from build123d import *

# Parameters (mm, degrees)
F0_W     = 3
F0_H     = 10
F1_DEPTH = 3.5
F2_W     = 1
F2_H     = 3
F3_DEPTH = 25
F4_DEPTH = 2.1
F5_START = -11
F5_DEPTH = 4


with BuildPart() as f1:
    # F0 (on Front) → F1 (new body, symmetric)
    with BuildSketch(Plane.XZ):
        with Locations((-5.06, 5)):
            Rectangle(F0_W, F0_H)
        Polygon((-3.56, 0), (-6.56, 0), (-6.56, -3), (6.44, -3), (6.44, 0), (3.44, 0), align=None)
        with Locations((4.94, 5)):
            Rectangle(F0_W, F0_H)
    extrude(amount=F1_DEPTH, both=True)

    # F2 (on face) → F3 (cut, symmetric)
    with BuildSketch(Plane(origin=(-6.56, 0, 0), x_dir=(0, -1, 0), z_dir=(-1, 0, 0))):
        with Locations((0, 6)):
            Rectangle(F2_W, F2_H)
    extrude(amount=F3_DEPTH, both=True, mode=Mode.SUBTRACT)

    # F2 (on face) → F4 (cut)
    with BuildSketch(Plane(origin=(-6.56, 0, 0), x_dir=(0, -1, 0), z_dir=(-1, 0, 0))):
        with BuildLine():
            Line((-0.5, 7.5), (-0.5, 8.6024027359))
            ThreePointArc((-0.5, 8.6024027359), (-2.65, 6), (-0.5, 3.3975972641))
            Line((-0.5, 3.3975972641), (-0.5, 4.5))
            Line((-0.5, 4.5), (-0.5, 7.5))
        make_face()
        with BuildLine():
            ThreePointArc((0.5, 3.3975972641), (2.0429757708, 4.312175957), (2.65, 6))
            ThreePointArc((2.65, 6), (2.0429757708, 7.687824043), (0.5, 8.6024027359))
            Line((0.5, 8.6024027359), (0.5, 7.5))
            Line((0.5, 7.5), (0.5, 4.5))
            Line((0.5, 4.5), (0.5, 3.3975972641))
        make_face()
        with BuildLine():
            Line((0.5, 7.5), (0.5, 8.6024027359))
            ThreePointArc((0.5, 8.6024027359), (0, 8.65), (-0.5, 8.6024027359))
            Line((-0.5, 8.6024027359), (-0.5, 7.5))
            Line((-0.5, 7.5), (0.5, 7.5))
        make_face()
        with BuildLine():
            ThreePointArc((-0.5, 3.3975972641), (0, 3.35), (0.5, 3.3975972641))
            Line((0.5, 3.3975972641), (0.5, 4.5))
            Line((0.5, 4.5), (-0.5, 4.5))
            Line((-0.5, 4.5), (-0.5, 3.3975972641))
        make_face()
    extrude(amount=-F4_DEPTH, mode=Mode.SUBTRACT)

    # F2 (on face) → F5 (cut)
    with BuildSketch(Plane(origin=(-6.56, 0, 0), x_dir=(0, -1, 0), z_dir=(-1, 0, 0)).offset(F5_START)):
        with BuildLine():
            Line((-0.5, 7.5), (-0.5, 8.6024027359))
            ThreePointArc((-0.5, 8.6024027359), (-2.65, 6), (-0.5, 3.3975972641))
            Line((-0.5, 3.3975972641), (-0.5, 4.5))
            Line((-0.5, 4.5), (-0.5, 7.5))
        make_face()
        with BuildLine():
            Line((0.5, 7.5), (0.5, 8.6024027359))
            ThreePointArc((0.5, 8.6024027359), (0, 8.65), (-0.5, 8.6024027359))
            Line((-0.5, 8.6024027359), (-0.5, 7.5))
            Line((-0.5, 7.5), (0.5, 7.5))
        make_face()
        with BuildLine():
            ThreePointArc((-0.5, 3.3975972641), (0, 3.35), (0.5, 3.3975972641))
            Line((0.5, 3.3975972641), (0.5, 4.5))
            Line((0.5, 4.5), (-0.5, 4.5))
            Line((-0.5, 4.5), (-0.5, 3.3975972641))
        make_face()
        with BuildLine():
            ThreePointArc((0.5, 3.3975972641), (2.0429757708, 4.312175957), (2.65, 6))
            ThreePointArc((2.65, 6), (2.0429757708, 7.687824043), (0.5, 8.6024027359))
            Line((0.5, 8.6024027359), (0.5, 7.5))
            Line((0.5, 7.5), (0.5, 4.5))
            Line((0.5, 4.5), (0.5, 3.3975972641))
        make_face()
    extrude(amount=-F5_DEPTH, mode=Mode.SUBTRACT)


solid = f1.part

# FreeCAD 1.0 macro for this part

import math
import FreeCAD as App
import Part
import Sketcher
Q = App.Units.Quantity

doc = App.newDocument("Part")
body = doc.addObject("PartDesign::Body", "Body")

sketch1 = doc.addObject("Sketcher::SketchObject", "Sketch")
body.addObject(sketch1)
sketch1.AttachmentSupport = (doc.XZ_Plane, [""])
sketch1.MapMode = "FlatFace"
sketch1.addGeometry([
    Part.LineSegment(App.Vector(-6.6, 10, 0), App.Vector(-6.6, -3, 0)),
    Part.LineSegment(App.Vector(-6.6, -3, 0), App.Vector(6.4, -3, 0)),
    Part.LineSegment(App.Vector(6.4, -3, 0), App.Vector(6.4, 10, 0)),
    Part.LineSegment(App.Vector(6.4, 10, 0), App.Vector(3.4, 10, 0)),
    Part.LineSegment(App.Vector(3.4, 10, 0), App.Vector(3.4, 0, 0)),
    Part.LineSegment(App.Vector(3.4, 0, 0), App.Vector(-3.6, 0, 0)),
    Part.LineSegment(App.Vector(-3.6, 0, 0), App.Vector(-3.6, 10, 0)),
    Part.LineSegment(App.Vector(-3.6, 10, 0), App.Vector(-6.6, 10, 0)),
], False)
sketch1.addConstraint([
    Sketcher.Constraint("Coincident", 0, 2, 1, 1),
    Sketcher.Constraint("Coincident", 1, 2, 2, 1),
    Sketcher.Constraint("Coincident", 2, 2, 3, 1),
    Sketcher.Constraint("Coincident", 3, 2, 4, 1),
    Sketcher.Constraint("Coincident", 4, 2, 5, 1),
    Sketcher.Constraint("Coincident", 5, 2, 6, 1),
    Sketcher.Constraint("Coincident", 6, 2, 7, 1),
    Sketcher.Constraint("Coincident", 7, 2, 0, 1),
    Sketcher.Constraint("Vertical", 0),
    Sketcher.Constraint("Horizontal", 1),
    Sketcher.Constraint("Vertical", 2),
    Sketcher.Constraint("Horizontal", 3),
    Sketcher.Constraint("Vertical", 4),
    Sketcher.Constraint("Horizontal", 5),
    Sketcher.Constraint("Vertical", 6),
    Sketcher.Constraint("Horizontal", 7),
    Sketcher.Constraint("PointOnObject", 4, 2, -1),
    Sketcher.Constraint("Horizontal", 3, 2, 6, 2),
    Sketcher.Constraint("Equal", 3, 7),
    Sketcher.Constraint("Equal", 1, 0),
    Sketcher.Constraint("DistanceX", 1, 1, 1, 2, Q("13 mm")),
    Sketcher.Constraint("DistanceX", 3, 2, 3, 1, Q("3 mm")),
    Sketcher.Constraint("DistanceY", 4, 2, 4, 1, Q("10 mm")),
    Sketcher.Constraint("DistanceX", 0, 2, -1, 1, Q("6.56 mm")),
])
pad1 = doc.addObject("PartDesign::Pad", "Pad")
body.addObject(pad1)
pad1.Profile = sketch1
pad1.Length = 7
pad1.Midplane = True

sketch2 = doc.addObject("Sketcher::SketchObject", "Sketch001")
body.addObject(sketch2)
sketch2.AttachmentSupport = (doc.YZ_Plane, [""])
sketch2.MapMode = "FlatFace"
sketch2.AttachmentOffset = App.Placement(App.Vector(0, 0, -6.56), App.Rotation())
sketch2.addGeometry([
    Part.LineSegment(App.Vector(0.5, 7.5, 0), App.Vector(0.5, 4.5, 0)),
    Part.LineSegment(App.Vector(0.5, 4.5, 0), App.Vector(-0.5, 4.5, 0)),
    Part.LineSegment(App.Vector(-0.5, 4.5, 0), App.Vector(-0.5, 7.5, 0)),
    Part.LineSegment(App.Vector(-0.5, 7.5, 0), App.Vector(0.5, 7.5, 0)),
], False)
sketch2.addConstraint([
    Sketcher.Constraint("Coincident", 0, 2, 1, 1),
    Sketcher.Constraint("Coincident", 1, 2, 2, 1),
    Sketcher.Constraint("Coincident", 2, 2, 3, 1),
    Sketcher.Constraint("Coincident", 3, 2, 0, 1),
    Sketcher.Constraint("Vertical", 0),
    Sketcher.Constraint("Horizontal", 1),
    Sketcher.Constraint("Vertical", 2),
    Sketcher.Constraint("Horizontal", 3),
    Sketcher.Constraint("DistanceX", 1, 2, 1, 1, Q("1 mm")),
    Sketcher.Constraint("DistanceY", 0, 2, 0, 1, Q("3 mm")),
    Sketcher.Constraint("DistanceX", -1, 1, 0, 2, Q("0.5 mm")),
    Sketcher.Constraint("DistanceY", -1, 1, 0, 2, Q("4.5 mm")),
])
pocket1 = doc.addObject("PartDesign::Pocket", "Pocket")
body.addObject(pocket1)
pocket1.Profile = sketch2
pocket1.Length = 50
pocket1.Midplane = True

sketch3 = doc.addObject("Sketcher::SketchObject", "Sketch002")
body.addObject(sketch3)
sketch3.AttachmentSupport = (doc.YZ_Plane, [""])
sketch3.MapMode = "FlatFace"
sketch3.AttachmentOffset = App.Placement(App.Vector(0, 0, -6.56), App.Rotation())
sketch3.addGeometry([
    Part.ArcOfCircle(Part.Circle(App.Vector(0, 6, 0), App.Vector(0, 0, 1), 2.6), math.radians(-79), math.radians(79)),
    Part.ArcOfCircle(Part.Circle(App.Vector(0, 6, 0), App.Vector(0, 0, 1), 2.6), math.radians(-101), math.radians(-79)),
    Part.ArcOfCircle(Part.Circle(App.Vector(0, 6, 0), App.Vector(0, 0, 1), 2.6), math.radians(180), math.radians(259)),
    Part.ArcOfCircle(Part.Circle(App.Vector(0, 6, 0), App.Vector(0, 0, 1), 2.6), math.radians(101), math.radians(180)),
    Part.ArcOfCircle(Part.Circle(App.Vector(0, 6, 0), App.Vector(0, 0, 1), 2.6), math.radians(79), math.radians(101)),
    Part.LineSegment(App.Vector(0.5, 4.5, 0), App.Vector(0.5, 7.5, 0)),
    Part.LineSegment(App.Vector(0.5, 7.5, 0), App.Vector(-0.5, 7.5, 0)),
    Part.LineSegment(App.Vector(-0.5, 7.5, 0), App.Vector(-0.5, 4.5, 0)),
    Part.LineSegment(App.Vector(-0.5, 4.5, 0), App.Vector(0.5, 4.5, 0)),
], False)
sketch3.addConstraint([
    Sketcher.Constraint("Tangent", 0, 1, 1, 2),
    Sketcher.Constraint("Tangent", 1, 1, 2, 2),
    Sketcher.Constraint("Tangent", 2, 1, 3, 2),
    Sketcher.Constraint("Tangent", 3, 1, 4, 2),
    Sketcher.Constraint("Tangent", 4, 1, 0, 2),
    Sketcher.Constraint("Coincident", 5, 2, 6, 1),
    Sketcher.Constraint("Coincident", 6, 2, 7, 1),
    Sketcher.Constraint("Coincident", 7, 2, 8, 1),
    Sketcher.Constraint("Coincident", 8, 2, 5, 1),
    Sketcher.Constraint("Vertical", 5),
    Sketcher.Constraint("Horizontal", 6),
    Sketcher.Constraint("Vertical", 7),
    Sketcher.Constraint("Horizontal", 8),
    Sketcher.Constraint("Coincident", 2, 3, 0, 3),
    Sketcher.Constraint("Symmetric", 0, 1, 1, 1, -2),
    Sketcher.Constraint("Horizontal", 4, 3, 2, 1),
    Sketcher.Constraint("Horizontal", 3, 1, 4, 1),
    Sketcher.Constraint("Vertical", 1, 1, 3, 1),
    Sketcher.Constraint("Vertical", 4, 1, 5, 2),
    Sketcher.Constraint("Vertical", 3, 1, 6, 2),
    Sketcher.Constraint("DistanceX", 6, 2, 6, 1, Q("1 mm")),
    Sketcher.Constraint("DistanceY", 5, 1, 5, 2, Q("3 mm")),
    Sketcher.Constraint("Radius", 0, Q("2.65 mm")),
    Sketcher.Constraint("DistanceY", -1, 1, 0, 3, Q("6 mm")),
    Sketcher.Constraint("DistanceY", -1, 1, 5, 2, Q("7.5 mm")),
])
pocket2 = doc.addObject("PartDesign::Pocket", "Pocket001")
body.addObject(pocket2)
pocket2.Profile = sketch3
pocket2.Length = 2.1
pocket2.Reversed = True

sketch4 = doc.addObject("Sketcher::SketchObject", "Sketch003")
body.addObject(sketch4)
sketch4.AttachmentSupport = (doc.YZ_Plane, [""])
sketch4.MapMode = "FlatFace"
sketch4.AttachmentOffset = App.Placement(App.Vector(0, 0, 4.44), App.Rotation())
sketch4.addGeometry([
    Part.ArcOfCircle(Part.Circle(App.Vector(0, 6, 0), App.Vector(0, 0, 1), 2.6), math.radians(-79), math.radians(79)),
    Part.ArcOfCircle(Part.Circle(App.Vector(0, 6, 0), App.Vector(0, 0, 1), 2.6), math.radians(-101), math.radians(-79)),
    Part.ArcOfCircle(Part.Circle(App.Vector(0, 6, 0), App.Vector(0, 0, 1), 2.6), math.radians(180), math.radians(259)),
    Part.ArcOfCircle(Part.Circle(App.Vector(0, 6, 0), App.Vector(0, 0, 1), 2.6), math.radians(101), math.radians(180)),
    Part.ArcOfCircle(Part.Circle(App.Vector(0, 6, 0), App.Vector(0, 0, 1), 2.6), math.radians(79), math.radians(101)),
    Part.LineSegment(App.Vector(-0.5, 4.5, 0), App.Vector(0.5, 4.5, 0)),
    Part.LineSegment(App.Vector(0.5, 4.5, 0), App.Vector(0.5, 7.5, 0)),
    Part.LineSegment(App.Vector(0.5, 7.5, 0), App.Vector(-0.5, 7.5, 0)),
    Part.LineSegment(App.Vector(-0.5, 7.5, 0), App.Vector(-0.5, 4.5, 0)),
], False)
sketch4.addConstraint([
    Sketcher.Constraint("Tangent", 0, 1, 1, 2),
    Sketcher.Constraint("Tangent", 1, 1, 2, 2),
    Sketcher.Constraint("Tangent", 2, 1, 3, 2),
    Sketcher.Constraint("Tangent", 3, 1, 4, 2),
    Sketcher.Constraint("Tangent", 4, 1, 0, 2),
    Sketcher.Constraint("Coincident", 5, 2, 6, 1),
    Sketcher.Constraint("Coincident", 6, 2, 7, 1),
    Sketcher.Constraint("Coincident", 7, 2, 8, 1),
    Sketcher.Constraint("Coincident", 8, 2, 5, 1),
    Sketcher.Constraint("Horizontal", 5),
    Sketcher.Constraint("Vertical", 6),
    Sketcher.Constraint("Horizontal", 7),
    Sketcher.Constraint("Vertical", 8),
    Sketcher.Constraint("Coincident", 2, 3, 0, 3),
    Sketcher.Constraint("Symmetric", 0, 1, 1, 1, -2),
    Sketcher.Constraint("Horizontal", 4, 3, 2, 1),
    Sketcher.Constraint("Horizontal", 3, 1, 4, 1),
    Sketcher.Constraint("Vertical", 1, 1, 3, 1),
    Sketcher.Constraint("Vertical", 4, 1, 5, 2),
    Sketcher.Constraint("Vertical", 3, 1, 7, 2),
    Sketcher.Constraint("DistanceX", 5, 1, 5, 2, Q("1 mm")),
    Sketcher.Constraint("DistanceY", 6, 1, 6, 2, Q("3 mm")),
    Sketcher.Constraint("Radius", 0, Q("2.65 mm")),
    Sketcher.Constraint("DistanceY", -1, 1, 0, 3, Q("6 mm")),
    Sketcher.Constraint("DistanceY", -1, 1, 5, 2, Q("4.5 mm")),
])
pocket3 = doc.addObject("PartDesign::Pocket", "Pocket002")
body.addObject(pocket3)
pocket3.Profile = sketch4
pocket3.Length = 4
pocket3.Reversed = True

doc.recompute()
